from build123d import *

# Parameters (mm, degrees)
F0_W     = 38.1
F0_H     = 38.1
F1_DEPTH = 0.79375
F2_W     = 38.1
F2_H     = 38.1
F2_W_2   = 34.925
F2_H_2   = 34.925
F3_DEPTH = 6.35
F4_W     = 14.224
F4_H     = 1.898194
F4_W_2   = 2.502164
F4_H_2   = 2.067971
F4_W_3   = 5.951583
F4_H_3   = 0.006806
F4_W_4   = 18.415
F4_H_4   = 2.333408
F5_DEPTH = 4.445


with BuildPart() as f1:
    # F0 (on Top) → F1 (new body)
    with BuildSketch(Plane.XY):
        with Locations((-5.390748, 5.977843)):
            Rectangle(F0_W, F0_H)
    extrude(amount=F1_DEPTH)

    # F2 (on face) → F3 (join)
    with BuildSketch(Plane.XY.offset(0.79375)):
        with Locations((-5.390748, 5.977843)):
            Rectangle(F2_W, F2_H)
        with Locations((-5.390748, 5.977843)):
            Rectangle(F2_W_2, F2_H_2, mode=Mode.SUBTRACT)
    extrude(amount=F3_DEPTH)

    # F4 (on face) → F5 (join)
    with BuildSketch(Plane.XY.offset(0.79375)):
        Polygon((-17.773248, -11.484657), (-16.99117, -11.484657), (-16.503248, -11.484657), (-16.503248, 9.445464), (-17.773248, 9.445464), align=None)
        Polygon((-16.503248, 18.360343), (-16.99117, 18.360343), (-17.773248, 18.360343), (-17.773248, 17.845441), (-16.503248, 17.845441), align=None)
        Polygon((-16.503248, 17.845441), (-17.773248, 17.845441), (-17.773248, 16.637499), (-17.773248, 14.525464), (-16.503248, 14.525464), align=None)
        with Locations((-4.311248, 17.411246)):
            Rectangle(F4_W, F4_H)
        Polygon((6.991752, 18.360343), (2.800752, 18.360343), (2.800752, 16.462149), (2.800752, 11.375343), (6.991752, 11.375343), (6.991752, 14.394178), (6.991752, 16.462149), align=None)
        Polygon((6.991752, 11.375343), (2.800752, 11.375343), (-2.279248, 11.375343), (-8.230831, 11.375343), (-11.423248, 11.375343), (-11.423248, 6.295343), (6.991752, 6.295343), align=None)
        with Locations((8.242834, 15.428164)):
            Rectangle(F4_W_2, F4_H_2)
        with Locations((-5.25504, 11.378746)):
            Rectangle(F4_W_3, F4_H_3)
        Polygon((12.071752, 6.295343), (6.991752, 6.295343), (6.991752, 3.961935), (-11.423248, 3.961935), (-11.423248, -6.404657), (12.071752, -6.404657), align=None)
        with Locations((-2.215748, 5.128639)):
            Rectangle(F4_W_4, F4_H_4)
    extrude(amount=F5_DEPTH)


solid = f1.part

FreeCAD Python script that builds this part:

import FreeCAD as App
import Part
import Sketcher
Q = App.Units.Quantity

doc = App.newDocument("Part")
body = doc.addObject("PartDesign::Body", "Body")

# Sketch on XY plane
sketch1 = body.newObject("Sketcher::SketchObject", "Sketch")
sketch1.AttachmentSupport = (doc.getObject("XY_Plane"), [""])
sketch1.MapMode = "FlatFace"
sketch1.addGeometry(Part.LineSegment(App.Vector(-24, 25, 0), App.Vector(-24, -13, 0)), False)
sketch1.addGeometry(Part.LineSegment(App.Vector(-24, -13, 0), App.Vector(14, -13, 0)), False)
sketch1.addGeometry(Part.LineSegment(App.Vector(14, -13, 0), App.Vector(14, 25, 0)), False)
sketch1.addGeometry(Part.LineSegment(App.Vector(14, 25, 0), App.Vector(-24, 25, 0)), False)
sketch1.addConstraint(Sketcher.Constraint("Coincident", 0, 2, 1, 1))
sketch1.addConstraint(Sketcher.Constraint("Coincident", 1, 2, 2, 1))
sketch1.addConstraint(Sketcher.Constraint("Coincident", 2, 2, 3, 1))
sketch1.addConstraint(Sketcher.Constraint("Coincident", 3, 2, 0, 1))
sketch1.addConstraint(Sketcher.Constraint("Vertical", 0))
sketch1.addConstraint(Sketcher.Constraint("Horizontal", 1))
sketch1.addConstraint(Sketcher.Constraint("Vertical", 2))
sketch1.addConstraint(Sketcher.Constraint("Horizontal", 3))
sketch1.addConstraint(Sketcher.Constraint("Equal", 3, 0))
sketch1.addConstraint(Sketcher.Constraint("DistanceX", 1, 1, 1, 2, Q("1.5 in")))
sketch1.addConstraint(Sketcher.Constraint("DistanceX", 0, 2, -1, 1, 24.440748))
sketch1.addConstraint(Sketcher.Constraint("DistanceY", 0, 2, -1, 1, 13.072157))
pad1 = body.newObject("PartDesign::Pad", "Pad")
pad1.Profile = sketch1
pad1.Length = Q("0.03125 in")

# Sketch on XY plane
sketch2 = body.newObject("Sketcher::SketchObject", "Sketch001")
sketch2.AttachmentSupport = (doc.getObject("XY_Plane"), [""])
sketch2.MapMode = "FlatFace"
sketch2.AttachmentOffset = App.Placement(App.Vector(0, 0, 0.03125 * 25.4), App.Rotation())
sketch2.addGeometry(Part.LineSegment(App.Vector(-24, 25, 0), App.Vector(-24, -13, 0)), False)
sketch2.addGeometry(Part.LineSegment(App.Vector(-24, -13, 0), App.Vector(14, -13, 0)), False)
sketch2.addGeometry(Part.LineSegment(App.Vector(14, -13, 0), App.Vector(14, 25, 0)), False)
sketch2.addGeometry(Part.LineSegment(App.Vector(14, 25, 0), App.Vector(-24, 25, 0)), False)
sketch2.addGeometry(Part.LineSegment(App.Vector(12, -11, 0), App.Vector(-23, -11, 0)), False)
sketch2.addGeometry(Part.LineSegment(App.Vector(-23, -11, 0), App.Vector(-23, 23, 0)), False)
sketch2.addGeometry(Part.LineSegment(App.Vector(-23, 23, 0), App.Vector(12, 23, 0)), False)
sketch2.addGeometry(Part.LineSegment(App.Vector(12, 23, 0), App.Vector(12, -11, 0)), False)
sketch2.addConstraint(Sketcher.Constraint("Coincident", 0, 2, 1, 1))
sketch2.addConstraint(Sketcher.Constraint("Coincident", 1, 2, 2, 1))
sketch2.addConstraint(Sketcher.Constraint("Coincident", 2, 2, 3, 1))
sketch2.addConstraint(Sketcher.Constraint("Coincident", 3, 2, 0, 1))
sketch2.addConstraint(Sketcher.Constraint("Coincident", 4, 2, 5, 1))
sketch2.addConstraint(Sketcher.Constraint("Coincident", 5, 2, 6, 1))
sketch2.addConstraint(Sketcher.Constraint("Coincident", 6, 2, 7, 1))
sketch2.addConstraint(Sketcher.Constraint("Coincident", 7, 2, 4, 1))
sketch2.addConstraint(Sketcher.Constraint("Vertical", 0))
sketch2.addConstraint(Sketcher.Constraint("Horizontal", 1))
sketch2.addConstraint(Sketcher.Constraint("Vertical", 2))
sketch2.addConstraint(Sketcher.Constraint("Horizontal", 3))
sketch2.addConstraint(Sketcher.Constraint("Horizontal", 4))
sketch2.addConstraint(Sketcher.Constraint("Vertical", 5))
sketch2.addConstraint(Sketcher.Constraint("Horizontal", 6))
sketch2.addConstraint(Sketcher.Constraint("Vertical", 7))
sketch2.addConstraint(Sketcher.Constraint("Equal", 3, 0))
sketch2.addConstraint(Sketcher.Constraint("Equal", 6, 5))
sketch2.addConstraint(Sketcher.Constraint("DistanceX", 1, 1, 1, 2, Q("1.5 in")))
sketch2.addConstraint(Sketcher.Constraint("DistanceX", 4, 2, 4, 1, Q("1.375 in")))
sketch2.addConstraint(Sketcher.Constraint("DistanceX", 0, 2, 4, 2, Q("0.0625 in")))
sketch2.addConstraint(Sketcher.Constraint("DistanceY", 0, 2, 4, 2, Q("0.0625 in")))
sketch2.addConstraint(Sketcher.Constraint("DistanceX", 4, 2, -1, 1, 22.853248))
sketch2.addConstraint(Sketcher.Constraint("DistanceY", 0, 2, -1, 1, 13.072157))
pad2 = body.newObject("PartDesign::Pad", "Pad001")
pad2.Profile = sketch2
pad2.Length = Q("0.25 in")

# Sketch on XY plane
sketch3 = body.newObject("Sketcher::SketchObject", "Sketch002")
sketch3.AttachmentSupport = (doc.getObject("XY_Plane"), [""])
sketch3.MapMode = "FlatFace"
sketch3.AttachmentOffset = App.Placement(App.Vector(0, 0, 0.03125 * 25.4), App.Rotation())
sketch3.addGeometry(Part.LineSegment(App.Vector(-17.773, -11.485, 0), App.Vector(-16.503, -11.485, 0)), False)
sketch3.addGeometry(Part.LineSegment(App.Vector(-16.503, -11.485, 0), App.Vector(-16.503, 9.445, 0)), False)
sketch3.addGeometry(Part.LineSegment(App.Vector(-16.503, 9.445, 0), App.Vector(-17.773, 9.445, 0)), False)
sketch3.addGeometry(Part.LineSegment(App.Vector(-17.773, 9.445, 0), App.Vector(-17.773, -11.485, 0)), False)
sketch3.addGeometry(Part.LineSegment(App.Vector(-16.503, 18.36, 0), App.Vector(-17.773, 18.36, 0)), False)
sketch3.addGeometry(Part.LineSegment(App.Vector(-17.773, 18.36, 0), App.Vector(-17.773, 14.525, 0)), False)
sketch3.addGeometry(Part.LineSegment(App.Vector(-17.773, 14.525, 0), App.Vector(-16.503, 14.525, 0)), False)
sketch3.addGeometry(Part.LineSegment(App.Vector(-16.503, 14.525, 0), App.Vector(-16.503, 18.36, 0)), False)
sketch3.addGeometry(Part.LineSegment(App.Vector(-11.423, 18.36, 0), App.Vector(-11.423, 16.462, 0)), False)
sketch3.addGeometry(Part.LineSegment(App.Vector(-11.423, 16.462, 0), App.Vector(2.801, 16.462, 0)), False)
sketch3.addGeometry(Part.LineSegment(App.Vector(2.801, 16.462, 0), App.Vector(2.801, 11.375, 0)), False)
sketch3.addGeometry(Part.LineSegment(App.Vector(2.801, 11.375, 0), App.Vector(-2.279, 11.375, 0)), False)
sketch3.addGeometry(Part.LineSegment(App.Vector(-2.279, 11.375, 0), App.Vector(-2.279, 11.382, 0)), False)
sketch3.addGeometry(Part.LineSegment(App.Vector(-2.279, 11.382, 0), App.Vector(-8.231, 11.382, 0)), False)
sketch3.addGeometry(Part.LineSegment(App.Vector(-8.231, 11.382, 0), App.Vector(-8.231, 11.375, 0)), False)
sketch3.addGeometry(Part.LineSegment(App.Vector(-8.231, 11.375, 0), App.Vector(-11.423, 11.375, 0)), False)
sketch3.addGeometry(Part.LineSegment(App.Vector(-11.423, 11.375, 0), App.Vector(-11.423, -6.405, 0)), False)
sketch3.addGeometry(Part.LineSegment(App.Vector(-11.423, -6.405, 0), App.Vector(12.072, -6.405, 0)), False)
sketch3.addGeometry(Part.LineSegment(App.Vector(12.072, -6.405, 0), App.Vector(12.072, 6.295, 0)), False)
sketch3.addGeometry(Part.LineSegment(App.Vector(12.072, 6.295, 0), App.Vector(6.992, 6.295, 0)), False)
sketch3.addGeometry(Part.LineSegment(App.Vector(6.992, 6.295, 0), App.Vector(6.992, 14.394, 0)), False)
sketch3.addGeometry(Part.LineSegment(App.Vector(6.992, 14.394, 0), App.Vector(9.494, 14.394, 0)), False)
sketch3.addGeometry(Part.LineSegment(App.Vector(9.494, 14.394, 0), App.Vector(9.494, 16.462, 0)), False)
sketch3.addGeometry(Part.LineSegment(App.Vector(9.494, 16.462, 0), App.Vector(6.992, 16.462, 0)), False)
sketch3.addGeometry(Part.LineSegment(App.Vector(6.992, 16.462, 0), App.Vector(6.992, 18.36, 0)), False)
sketch3.addGeometry(Part.LineSegment(App.Vector(6.992, 18.36, 0), App.Vector(-11.423, 18.36, 0)), False)
sketch3.addConstraint(Sketcher.Constraint("Coincident", 0, 2, 1, 1))
sketch3.addConstraint(Sketcher.Constraint("Coincident", 1, 2, 2, 1))
sketch3.addConstraint(Sketcher.Constraint("Coincident", 2, 2, 3, 1))
sketch3.addConstraint(Sketcher.Constraint("Coincident", 3, 2, 0, 1))
sketch3.addConstraint(Sketcher.Constraint("Coincident", 4, 2, 5, 1))
sketch3.addConstraint(Sketcher.Constraint("Coincident", 5, 2, 6, 1))
sketch3.addConstraint(Sketcher.Constraint("Coincident", 6, 2, 7, 1))
sketch3.addConstraint(Sketcher.Constraint("Coincident", 7, 2, 4, 1))
sketch3.addConstraint(Sketcher.Constraint("Coincident", 8, 2, 9, 1))
sketch3.addConstraint(Sketcher.Constraint("Coincident", 9, 2, 10, 1))
sketch3.addConstraint(Sketcher.Constraint("Coincident", 10, 2, 11, 1))
sketch3.addConstraint(Sketcher.Constraint("Coincident", 11, 2, 12, 1))
sketch3.addConstraint(Sketcher.Constraint("Coincident", 12, 2, 13, 1))
sketch3.addConstraint(Sketcher.Constraint("Coincident", 13, 2, 14, 1))
sketch3.addConstraint(Sketcher.Constraint("Coincident", 14, 2, 15, 1))
sketch3.addConstraint(Sketcher.Constraint("Coincident", 15, 2, 16, 1))
sketch3.addConstraint(Sketcher.Constraint("Coincident", 16, 2, 17, 1))
sketch3.addConstraint(Sketcher.Constraint("Coincident", 17, 2, 18, 1))
sketch3.addConstraint(Sketcher.Constraint("Coincident", 18, 2, 19, 1))
sketch3.addConstraint(Sketcher.Constraint("Coincident", 19, 2, 20, 1))
sketch3.addConstraint(Sketcher.Constraint("Coincident", 20, 2, 21, 1))
sketch3.addConstraint(Sketcher.Constraint("Coincident", 21, 2, 22, 1))
sketch3.addConstraint(Sketcher.Constraint("Coincident", 22, 2, 23, 1))
sketch3.addConstraint(Sketcher.Constraint("Coincident", 23, 2, 24, 1))
sketch3.addConstraint(Sketcher.Constraint("Coincident", 24, 2, 25, 1))
sketch3.addConstraint(Sketcher.Constraint("Coincident", 25, 2, 8, 1))
sketch3.addConstraint(Sketcher.Constraint("Horizontal", 0))
sketch3.addConstraint(Sketcher.Constraint("Vertical", 1))
sketch3.addConstraint(Sketcher.Constraint("Horizontal", 2))
sketch3.addConstraint(Sketcher.Constraint("Vertical", 3))
sketch3.addConstraint(Sketcher.Constraint("Horizontal", 4))
sketch3.addConstraint(Sketcher.Constraint("Vertical", 5))
sketch3.addConstraint(Sketcher.Constraint("Horizontal", 6))
sketch3.addConstraint(Sketcher.Constraint("Vertical", 7))
sketch3.addConstraint(Sketcher.Constraint("Vertical", 8))
sketch3.addConstraint(Sketcher.Constraint("Horizontal", 9))
sketch3.addConstraint(Sketcher.Constraint("Vertical", 10))
sketch3.addConstraint(Sketcher.Constraint("Horizontal", 11))
sketch3.addConstraint(Sketcher.Constraint("Vertical", 12))
sketch3.addConstraint(Sketcher.Constraint("Horizontal", 13))
sketch3.addConstraint(Sketcher.Constraint("Vertical", 14))
sketch3.addConstraint(Sketcher.Constraint("Horizontal", 15))
sketch3.addConstraint(Sketcher.Constraint("Vertical", 16))
sketch3.addConstraint(Sketcher.Constraint("Horizontal", 17))
sketch3.addConstraint(Sketcher.Constraint("Vertical", 18))
sketch3.addConstraint(Sketcher.Constraint("Horizontal", 19))
sketch3.addConstraint(Sketcher.Constraint("Vertical", 20))
sketch3.addConstraint(Sketcher.Constraint("Horizontal", 21))
sketch3.addConstraint(Sketcher.Constraint("Vertical", 22))
sketch3.addConstraint(Sketcher.Constraint("Horizontal", 23))
sketch3.addConstraint(Sketcher.Constraint("Vertical", 24))
sketch3.addConstraint(Sketcher.Constraint("Horizontal", 25))
sketch3.addConstraint(Sketcher.Constraint("Horizontal", 11, 2, 14, 2))
sketch3.addConstraint(Sketcher.Constraint("Horizontal", 9, 2, 22, 2))
sketch3.addConstraint(Sketcher.Constraint("Horizontal", 7, 2, 24, 2))
sketch3.addConstraint(Sketcher.Constraint("Vertical", 3, 2, 4, 2))
sketch3.addConstraint(Sketcher.Constraint("Vertical", 1, 2, 6, 2))
sketch3.addConstraint(Sketcher.Constraint("Vertical", 8, 2, 15, 2))
sketch3.addConstraint(Sketcher.Constraint("Vertical", 20, 2, 23, 2))
sketch3.addConstraint(Sketcher.Constraint("Equal", 11, 19))
sketch3.addConstraint(Sketcher.Constraint("DistanceX", 11, 2, 11, 1, Q("0.2 in")))
sketch3.addConstraint(Sketcher.Constraint("DistanceY", 16, 2, 16, 1, Q("0.7 in")))
sketch3.addConstraint(Sketcher.Constraint("DistanceY", 18, 1, 18, 2, Q("0.5 in")))
sketch3.addConstraint(Sketcher.Constraint("DistanceX", 0, 1, 0, 2, Q("0.05 in")))
sketch3.addConstraint(Sketcher.Constraint("DistanceX", 9, 1, 9, 2, Q("0.56 in")))
sketch3.addConstraint(Sketcher.Constraint("DistanceY", 2, 2, 5, 2, Q("0.2 in")))
sketch3.addConstraint(Sketcher.Constraint("DistanceX", 7, 2, 8, 2, Q("0.2 in")))
sketch3.addConstraint(Sketcher.Constraint("DistanceY", 12, 2, 9, 2, Q("0.2 in")))
sketch3.addConstraint(Sketcher.Constraint("DistanceY", 0, 2, 16, 2, Q("0.2 in")))
sketch3.addConstraint(Sketcher.Constraint("DistanceX", 17, 1, 17, 2, Q("0.925 in")))
sketch3.addConstraint(Sketcher.Constraint("DistanceY", 3, 2, 4, 2, Q("1.175 in")))
sketch3.addConstraint(Sketcher.Constraint("DistanceY", -1, 1, 20, 2, Q("0.5666999 in")))
sketch3.addConstraint(Sketcher.Constraint("DistanceY", 1, 1, 1, 2, 20.930121))
sketch3.addConstraint(Sketcher.Constraint("DistanceY", 22, 1, 22, 2, 2.067971))
sketch3.addConstraint(Sketcher.Constraint("DistanceX", 13, 2, 13, 1, 5.951583))
sketch3.addConstraint(Sketcher.Constraint("DistanceX", 21, 1, 21, 2, 2.502164))
sketch3.addConstraint(Sketcher.Constraint("DistanceY", 8, 2, 8, 1, 1.898194))
sketch3.addConstraint(Sketcher.Constraint("DistanceX", 11, 2, -1, 1, 2.279249))
pad3 = body.newObject("PartDesign::Pad", "Pad002")
pad3.Profile = sketch3
pad3.Length = Q("0.175 in")

doc.recompute()
